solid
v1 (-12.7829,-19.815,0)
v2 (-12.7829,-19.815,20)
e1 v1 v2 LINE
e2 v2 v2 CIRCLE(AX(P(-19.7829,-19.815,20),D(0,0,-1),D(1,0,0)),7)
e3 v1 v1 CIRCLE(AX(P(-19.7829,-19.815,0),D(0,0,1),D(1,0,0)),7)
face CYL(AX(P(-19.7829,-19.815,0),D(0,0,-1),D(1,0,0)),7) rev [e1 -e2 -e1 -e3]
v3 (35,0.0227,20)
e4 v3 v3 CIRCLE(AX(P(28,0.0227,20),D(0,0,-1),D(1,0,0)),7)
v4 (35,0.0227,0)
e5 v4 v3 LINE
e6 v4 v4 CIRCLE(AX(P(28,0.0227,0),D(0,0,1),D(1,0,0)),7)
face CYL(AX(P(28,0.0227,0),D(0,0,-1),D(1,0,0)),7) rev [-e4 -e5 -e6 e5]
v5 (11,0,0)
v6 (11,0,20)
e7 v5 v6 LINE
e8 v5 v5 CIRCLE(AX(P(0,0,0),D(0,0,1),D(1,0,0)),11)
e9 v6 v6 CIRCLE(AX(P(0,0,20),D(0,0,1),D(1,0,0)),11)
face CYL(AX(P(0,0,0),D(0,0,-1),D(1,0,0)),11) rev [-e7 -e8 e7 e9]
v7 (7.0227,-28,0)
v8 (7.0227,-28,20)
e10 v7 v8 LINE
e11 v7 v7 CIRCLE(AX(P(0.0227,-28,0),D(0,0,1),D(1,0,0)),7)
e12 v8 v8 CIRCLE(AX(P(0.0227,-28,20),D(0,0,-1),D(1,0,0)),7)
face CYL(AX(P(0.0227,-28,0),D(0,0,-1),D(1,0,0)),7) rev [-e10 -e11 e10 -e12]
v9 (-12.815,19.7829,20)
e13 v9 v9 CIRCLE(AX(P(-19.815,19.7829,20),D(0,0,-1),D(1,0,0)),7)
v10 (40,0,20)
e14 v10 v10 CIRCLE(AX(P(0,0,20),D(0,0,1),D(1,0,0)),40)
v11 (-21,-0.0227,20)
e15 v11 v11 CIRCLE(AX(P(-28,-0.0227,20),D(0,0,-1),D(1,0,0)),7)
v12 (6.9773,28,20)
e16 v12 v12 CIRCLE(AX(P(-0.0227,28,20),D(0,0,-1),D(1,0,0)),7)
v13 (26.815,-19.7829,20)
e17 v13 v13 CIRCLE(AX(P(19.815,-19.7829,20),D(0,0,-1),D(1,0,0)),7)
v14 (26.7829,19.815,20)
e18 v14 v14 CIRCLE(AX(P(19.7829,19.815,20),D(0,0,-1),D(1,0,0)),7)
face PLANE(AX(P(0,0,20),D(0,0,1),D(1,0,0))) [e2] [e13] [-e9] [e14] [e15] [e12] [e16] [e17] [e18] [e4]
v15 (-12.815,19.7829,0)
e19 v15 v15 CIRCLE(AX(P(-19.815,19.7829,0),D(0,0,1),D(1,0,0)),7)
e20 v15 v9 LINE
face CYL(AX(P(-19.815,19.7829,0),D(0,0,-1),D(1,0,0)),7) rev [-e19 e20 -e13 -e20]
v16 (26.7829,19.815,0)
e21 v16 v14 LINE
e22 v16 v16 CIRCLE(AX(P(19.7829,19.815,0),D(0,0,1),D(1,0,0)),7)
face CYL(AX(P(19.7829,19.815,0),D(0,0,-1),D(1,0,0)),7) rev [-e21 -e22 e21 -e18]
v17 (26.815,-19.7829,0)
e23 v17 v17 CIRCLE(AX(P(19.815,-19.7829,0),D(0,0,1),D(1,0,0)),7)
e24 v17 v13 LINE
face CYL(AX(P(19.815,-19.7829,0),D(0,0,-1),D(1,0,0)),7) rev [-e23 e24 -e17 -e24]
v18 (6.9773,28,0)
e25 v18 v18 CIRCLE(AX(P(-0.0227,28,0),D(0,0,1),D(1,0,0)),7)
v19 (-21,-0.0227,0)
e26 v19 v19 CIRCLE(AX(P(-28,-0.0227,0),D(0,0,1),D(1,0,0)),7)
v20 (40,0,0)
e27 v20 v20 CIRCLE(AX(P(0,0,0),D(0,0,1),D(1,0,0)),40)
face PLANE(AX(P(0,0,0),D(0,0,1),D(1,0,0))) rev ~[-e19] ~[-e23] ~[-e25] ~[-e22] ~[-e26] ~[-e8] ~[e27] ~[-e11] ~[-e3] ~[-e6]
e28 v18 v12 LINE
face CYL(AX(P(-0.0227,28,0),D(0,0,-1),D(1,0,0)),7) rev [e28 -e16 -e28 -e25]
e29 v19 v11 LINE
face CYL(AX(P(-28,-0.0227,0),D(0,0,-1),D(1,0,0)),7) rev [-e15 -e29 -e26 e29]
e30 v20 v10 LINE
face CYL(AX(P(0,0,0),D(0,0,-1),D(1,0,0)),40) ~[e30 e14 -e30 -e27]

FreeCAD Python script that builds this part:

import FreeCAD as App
import Part
import Sketcher

V = App.Vector

doc = App.newDocument("Part")
body = doc.addObject("PartDesign::Body", "Body")

# Sketch on XY plane
sketch1 = doc.addObject("Sketcher::SketchObject", "Sketch")
body.addObject(sketch1)
sketch1.AttachmentSupport = (doc.XY_Plane, [""])
sketch1.MapMode = "FlatFace"
sketch1.addGeometry([
    Part.Circle(V(0, 0, 0), V(0, 0, 1), 40),  # 0
    Part.Circle(V(20, 20, 0), V(0, 0, 1), 7),  # 1
    Part.Circle(V(0, 28, 0), V(0, 0, 1), 7),  # 2
    Part.Circle(V(-20, 20, 0), V(0, 0, 1), 7),  # 3
    Part.Circle(V(-28, 0, 0), V(0, 0, 1), 7),  # 4
    Part.Circle(V(-20, -20, 0), V(0, 0, 1), 7),  # 5
    Part.Circle(V(0, -28, 0), V(0, 0, 1), 7),  # 6
    Part.Circle(V(20, -20, 0), V(0, 0, 1), 7),  # 7
    Part.Circle(V(28, 0, 0), V(0, 0, 1), 7),  # 8
    Part.Circle(V(0, 0, 0), V(0, 0, 1), 11),  # 9
], False)
sketch1.addConstraint([
    Sketcher.Constraint("Coincident", 0, 3, -1, 1),
    Sketcher.Constraint("Coincident", 9, 3, -1, 1),
    Sketcher.Constraint("Equal", 1, 2),
    Sketcher.Constraint("Equal", 2, 3),
    Sketcher.Constraint("Equal", 3, 4),
    Sketcher.Constraint("Equal", 4, 5),
    Sketcher.Constraint("Equal", 5, 6),
    Sketcher.Constraint("Equal", 6, 7),
    Sketcher.Constraint("Equal", 7, 8),
    Sketcher.Constraint("Symmetric", 1, 3, 5, 3, -1, 1),
    Sketcher.Constraint("Symmetric", 2, 3, 6, 3, -1, 1),
    Sketcher.Constraint("Symmetric", 3, 3, 7, 3, -1, 1),
    Sketcher.Constraint("Symmetric", 4, 3, 8, 3, -1, 1),
    Sketcher.Constraint("Diameter", 0, 80.0),
    Sketcher.Constraint("Diameter", 1, 14.0),
    Sketcher.Constraint("Diameter", 9, 22.0),
    Sketcher.Constraint("DistanceY", -1, 1, 2, 3, 28.0),
    Sketcher.Constraint("DistanceX", 4, 3, -1, 1, 28.0),
    Sketcher.Constraint("DistanceY", 5, 3, 1, 3, 39.63),
    Sketcher.Constraint("DistanceX", -1, 1, 1, 3, 19.783),
    Sketcher.Constraint("DistanceX", 3, 3, -1, 1, 19.815),
    Sketcher.Constraint("DistanceY", -1, 1, 3, 3, 19.783),
    Sketcher.Constraint("DistanceX", 2, 3, -1, 1, 0.0227),
    Sketcher.Constraint("DistanceY", 4, 3, -1, 1, 0.0227),
])
pad1 = doc.addObject("PartDesign::Pad", "Pad")
body.addObject(pad1)
pad1.Profile = sketch1
pad1.Length = 20

doc.recompute()
